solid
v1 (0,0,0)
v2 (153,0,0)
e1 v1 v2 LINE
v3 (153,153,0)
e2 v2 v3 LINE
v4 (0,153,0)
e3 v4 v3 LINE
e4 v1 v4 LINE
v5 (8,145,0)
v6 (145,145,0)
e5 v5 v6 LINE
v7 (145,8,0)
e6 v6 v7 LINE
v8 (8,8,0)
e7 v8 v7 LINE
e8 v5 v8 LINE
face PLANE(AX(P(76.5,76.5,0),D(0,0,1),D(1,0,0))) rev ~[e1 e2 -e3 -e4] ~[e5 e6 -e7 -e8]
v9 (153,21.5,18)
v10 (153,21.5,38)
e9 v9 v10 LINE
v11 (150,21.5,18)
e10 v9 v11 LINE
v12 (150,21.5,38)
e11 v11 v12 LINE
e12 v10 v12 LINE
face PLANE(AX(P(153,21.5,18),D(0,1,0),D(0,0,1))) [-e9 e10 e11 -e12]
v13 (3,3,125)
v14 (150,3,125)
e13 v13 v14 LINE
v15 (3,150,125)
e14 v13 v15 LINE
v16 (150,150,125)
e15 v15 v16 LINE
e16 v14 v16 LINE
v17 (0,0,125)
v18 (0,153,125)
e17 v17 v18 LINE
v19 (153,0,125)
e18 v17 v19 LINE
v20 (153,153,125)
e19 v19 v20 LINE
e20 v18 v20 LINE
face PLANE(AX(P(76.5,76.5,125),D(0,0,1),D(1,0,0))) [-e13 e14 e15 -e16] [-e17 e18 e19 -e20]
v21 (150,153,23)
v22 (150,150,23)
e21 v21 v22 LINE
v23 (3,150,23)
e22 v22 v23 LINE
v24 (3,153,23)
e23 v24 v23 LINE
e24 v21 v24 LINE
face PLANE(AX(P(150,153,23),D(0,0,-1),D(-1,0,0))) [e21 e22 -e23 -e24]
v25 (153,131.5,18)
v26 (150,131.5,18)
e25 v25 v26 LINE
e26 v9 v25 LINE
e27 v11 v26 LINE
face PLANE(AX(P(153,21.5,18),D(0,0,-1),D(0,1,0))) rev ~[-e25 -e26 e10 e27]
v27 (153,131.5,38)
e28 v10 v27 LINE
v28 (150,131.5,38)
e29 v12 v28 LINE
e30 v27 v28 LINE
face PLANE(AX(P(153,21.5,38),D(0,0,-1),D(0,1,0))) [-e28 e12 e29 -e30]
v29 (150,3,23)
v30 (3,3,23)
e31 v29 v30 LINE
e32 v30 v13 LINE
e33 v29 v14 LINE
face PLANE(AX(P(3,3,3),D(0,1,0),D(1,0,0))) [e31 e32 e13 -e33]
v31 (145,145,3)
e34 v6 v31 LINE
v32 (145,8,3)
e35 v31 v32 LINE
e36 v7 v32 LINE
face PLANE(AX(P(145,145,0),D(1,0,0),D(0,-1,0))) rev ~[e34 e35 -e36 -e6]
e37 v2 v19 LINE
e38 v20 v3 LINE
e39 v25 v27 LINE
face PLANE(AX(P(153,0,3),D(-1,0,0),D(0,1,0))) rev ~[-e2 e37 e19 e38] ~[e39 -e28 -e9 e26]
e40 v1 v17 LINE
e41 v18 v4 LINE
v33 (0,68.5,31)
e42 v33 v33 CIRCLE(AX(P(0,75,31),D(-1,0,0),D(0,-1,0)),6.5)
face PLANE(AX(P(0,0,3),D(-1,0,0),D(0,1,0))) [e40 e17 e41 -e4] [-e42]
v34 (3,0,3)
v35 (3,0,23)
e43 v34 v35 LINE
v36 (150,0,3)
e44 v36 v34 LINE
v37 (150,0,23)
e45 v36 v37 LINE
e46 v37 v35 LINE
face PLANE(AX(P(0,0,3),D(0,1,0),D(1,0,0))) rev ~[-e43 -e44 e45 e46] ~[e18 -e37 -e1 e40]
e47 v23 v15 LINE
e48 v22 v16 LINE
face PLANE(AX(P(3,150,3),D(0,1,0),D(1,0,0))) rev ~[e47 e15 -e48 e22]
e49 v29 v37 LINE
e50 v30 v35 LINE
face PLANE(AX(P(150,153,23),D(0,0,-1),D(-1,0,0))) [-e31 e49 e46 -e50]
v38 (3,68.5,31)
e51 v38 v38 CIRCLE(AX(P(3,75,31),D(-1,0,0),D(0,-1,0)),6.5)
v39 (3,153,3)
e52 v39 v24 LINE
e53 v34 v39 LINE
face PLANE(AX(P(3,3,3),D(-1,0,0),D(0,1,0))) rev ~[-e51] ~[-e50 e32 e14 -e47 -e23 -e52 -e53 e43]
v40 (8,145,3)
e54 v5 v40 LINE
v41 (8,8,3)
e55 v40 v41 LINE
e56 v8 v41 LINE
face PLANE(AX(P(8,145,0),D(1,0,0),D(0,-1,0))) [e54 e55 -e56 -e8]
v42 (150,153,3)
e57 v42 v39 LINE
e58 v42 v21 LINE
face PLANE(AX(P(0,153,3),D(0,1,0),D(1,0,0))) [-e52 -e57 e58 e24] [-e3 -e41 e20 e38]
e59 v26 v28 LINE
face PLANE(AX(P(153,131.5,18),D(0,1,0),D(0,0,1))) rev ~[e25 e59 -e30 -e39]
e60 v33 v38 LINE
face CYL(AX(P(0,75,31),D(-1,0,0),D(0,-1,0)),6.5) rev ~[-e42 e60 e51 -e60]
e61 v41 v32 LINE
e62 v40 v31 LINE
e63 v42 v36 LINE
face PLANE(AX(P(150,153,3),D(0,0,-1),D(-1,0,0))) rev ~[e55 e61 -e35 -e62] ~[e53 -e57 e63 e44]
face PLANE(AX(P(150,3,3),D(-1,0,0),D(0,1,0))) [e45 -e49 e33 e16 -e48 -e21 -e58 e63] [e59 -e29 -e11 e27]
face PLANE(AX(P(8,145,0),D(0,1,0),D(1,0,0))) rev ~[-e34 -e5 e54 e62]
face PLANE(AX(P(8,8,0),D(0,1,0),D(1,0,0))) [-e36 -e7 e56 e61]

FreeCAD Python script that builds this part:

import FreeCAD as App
import Part
import Sketcher
from FreeCAD import Vector
Q = App.Units.Quantity


def add_polygon(sketch, points):
    """Adds a closed chain of lines whose ends are joined by coincident constraints."""
    first, n = sketch.GeometryCount, len(points)
    for a, b in zip(points, points[1:] + points[:1]):
        sketch.addGeometry(Part.LineSegment(App.Vector(*a, 0), App.Vector(*b, 0)), False)
    for i in range(n):
        sketch.addConstraint(Sketcher.Constraint("Coincident", first + i, 2, first + (i + 1) % n, 1))

doc = App.newDocument("Part")
body = doc.addObject("PartDesign::Body", "Body")

sketch1 = doc.addObject("Sketcher::SketchObject", "Sketch")
body.addObject(sketch1)
sketch1.AttachmentSupport = (doc.XY_Plane, [""])
sketch1.MapMode = "FlatFace"
add_polygon(sketch1, [(0, 153), (0, 0), (153, 0), (153, 153)])
sketch1.addConstraint(Sketcher.Constraint("Vertical", 0))
sketch1.addConstraint(Sketcher.Constraint("Horizontal", 1))
sketch1.addConstraint(Sketcher.Constraint("Vertical", 2))
sketch1.addConstraint(Sketcher.Constraint("Horizontal", 3))
sketch1.addConstraint(Sketcher.Constraint("Coincident", 0, 2, -1, 1))
sketch1.addConstraint(Sketcher.Constraint("Equal", 3, 0))
sketch1.addConstraint(Sketcher.Constraint("DistanceX", 1, 1, 1, 2, Q("153 mm")))
pad1 = doc.addObject("PartDesign::Pad", "Pad")
body.addObject(pad1)
pad1.Profile = sketch1
pad1.Length = 3

sketch2 = doc.addObject("Sketcher::SketchObject", "Sketch001")
body.addObject(sketch2)
sketch2.AttachmentSupport = (doc.XY_Plane, [""])
sketch2.MapMode = "FlatFace"
sketch2.AttachmentOffset = App.Placement(Vector(0, 0, 3), App.Rotation())
add_polygon(sketch2, [(0, 153), (0, 0), (153, 0), (153, 153)])
add_polygon(sketch2, [(150, 3), (3, 3), (3, 150), (150, 150)])
sketch2.addConstraint(Sketcher.Constraint("Vertical", 0))
sketch2.addConstraint(Sketcher.Constraint("Horizontal", 1))
sketch2.addConstraint(Sketcher.Constraint("Vertical", 2))
sketch2.addConstraint(Sketcher.Constraint("Horizontal", 3))
sketch2.addConstraint(Sketcher.Constraint("Horizontal", 4))
sketch2.addConstraint(Sketcher.Constraint("Vertical", 5))
sketch2.addConstraint(Sketcher.Constraint("Horizontal", 6))
sketch2.addConstraint(Sketcher.Constraint("Vertical", 7))
sketch2.addConstraint(Sketcher.Constraint("Coincident", 0, 2, -1, 1))
sketch2.addConstraint(Sketcher.Constraint("Equal", 3, 0))
sketch2.addConstraint(Sketcher.Constraint("Equal", 6, 5))
sketch2.addConstraint(Sketcher.Constraint("DistanceX", 1, 1, 1, 2, Q("153 mm")))
sketch2.addConstraint(Sketcher.Constraint("DistanceX", 4, 2, 4, 1, Q("147 mm")))
sketch2.addConstraint(Sketcher.Constraint("DistanceX", -1, 1, 4, 2, Q("3 mm")))
sketch2.addConstraint(Sketcher.Constraint("DistanceY", -1, 1, 4, 2, Q("3 mm")))
pad2 = doc.addObject("PartDesign::Pad", "Pad001")
body.addObject(pad2)
pad2.Profile = sketch2
pad2.Length = 122

sketch3 = doc.addObject("Sketcher::SketchObject", "Sketch002")
body.addObject(sketch3)
sketch3.AttachmentSupport = (doc.XZ_Plane, [""])
sketch3.MapMode = "FlatFace"
sketch3.AttachmentOffset = App.Placement(Vector(0, 0, -153), App.Rotation())
add_polygon(sketch3, [(150, 23), (150, 3), (3, 3), (3, 23)])
sketch3.addConstraint(Sketcher.Constraint("Vertical", 0))
sketch3.addConstraint(Sketcher.Constraint("Horizontal", 1))
sketch3.addConstraint(Sketcher.Constraint("Vertical", 2))
sketch3.addConstraint(Sketcher.Constraint("Horizontal", 3))
sketch3.addConstraint(Sketcher.Constraint("DistanceX", 1, 2, 1, 1, Q("147 mm")))
sketch3.addConstraint(Sketcher.Constraint("DistanceY", 0, 2, 0, 1, Q("20 mm")))
sketch3.addConstraint(Sketcher.Constraint("DistanceX", -1, 1, 0, 2, Q("150 mm")))
sketch3.addConstraint(Sketcher.Constraint("DistanceY", -1, 1, 0, 2, Q("3 mm")))
pocket1 = doc.addObject("PartDesign::Pocket", "Pocket")
body.addObject(pocket1)
pocket1.Profile = sketch3
pocket1.Length = 200
pocket1.Reversed = True

sketch4 = doc.addObject("Sketcher::SketchObject", "Sketch003")
body.addObject(sketch4)
sketch4.AttachmentSupport = (doc.XY_Plane, [""])
sketch4.MapMode = "FlatFace"
add_polygon(sketch4, [(8, 8), (8, 145), (145, 145), (145, 8)])
sketch4.addConstraint(Sketcher.Constraint("Vertical", 0))
sketch4.addConstraint(Sketcher.Constraint("Horizontal", 1))
sketch4.addConstraint(Sketcher.Constraint("Vertical", 2))
sketch4.addConstraint(Sketcher.Constraint("Horizontal", 3))
sketch4.addConstraint(Sketcher.Constraint("Equal", 3, 0))
sketch4.addConstraint(Sketcher.Constraint("DistanceX", 1, 1, 1, 2, Q("137 mm")))
sketch4.addConstraint(Sketcher.Constraint("DistanceX", -1, 1, 0, 2, Q("8 mm")))
sketch4.addConstraint(Sketcher.Constraint("DistanceY", -1, 1, 0, 2, Q("145 mm")))
pocket2 = doc.addObject("PartDesign::Pocket", "Pocket001")
body.addObject(pocket2)
pocket2.Profile = sketch4
pocket2.Length = 5
pocket2.Reversed = True

sketch5 = doc.addObject("Sketcher::SketchObject", "Sketch004")
body.addObject(sketch5)
sketch5.AttachmentSupport = (doc.YZ_Plane, [""])
sketch5.MapMode = "FlatFace"
sketch5.addGeometry(Part.Circle(Vector(75, 31, 0), Vector(0, 0, 1), 6), False)
sketch5.addConstraint(Sketcher.Constraint("Diameter", 0, Q("13 mm")))
sketch5.addConstraint(Sketcher.Constraint("DistanceX", -1, 1, 0, 3, Q("75 mm")))
sketch5.addConstraint(Sketcher.Constraint("DistanceY", -1, 1, 0, 3, Q("31 mm")))
pocket3 = doc.addObject("PartDesign::Pocket", "Pocket002")
body.addObject(pocket3)
pocket3.Profile = sketch5
pocket3.Length = 3
pocket3.Reversed = True

sketch6 = doc.addObject("Sketcher::SketchObject", "Sketch005")
body.addObject(sketch6)
sketch6.AttachmentSupport = (doc.YZ_Plane, [""])
sketch6.MapMode = "FlatFace"
sketch6.AttachmentOffset = App.Placement(Vector(0, 0, 153), App.Rotation())
add_polygon(sketch6, [(22, 38), (22, 18), (132, 18), (132, 38)])
sketch6.addConstraint(Sketcher.Constraint("Vertical", 0))
sketch6.addConstraint(Sketcher.Constraint("Horizontal", 1))
sketch6.addConstraint(Sketcher.Constraint("Vertical", 2))
sketch6.addConstraint(Sketcher.Constraint("Horizontal", 3))
sketch6.addConstraint(Sketcher.Constraint("DistanceX", 1, 1, 1, 2, Q("110 mm")))
sketch6.addConstraint(Sketcher.Constraint("DistanceY", 0, 2, 0, 1, Q("20 mm")))
sketch6.addConstraint(Sketcher.Constraint("DistanceY", -1, 1, 0, 2, Q("18 mm")))
sketch6.addConstraint(Sketcher.Constraint("DistanceX", -1, 1, 0, 2, Q("21.5 mm")))
pocket4 = doc.addObject("PartDesign::Pocket", "Pocket003")
body.addObject(pocket4)
pocket4.Profile = sketch6
pocket4.Length = 3

doc.recompute()
